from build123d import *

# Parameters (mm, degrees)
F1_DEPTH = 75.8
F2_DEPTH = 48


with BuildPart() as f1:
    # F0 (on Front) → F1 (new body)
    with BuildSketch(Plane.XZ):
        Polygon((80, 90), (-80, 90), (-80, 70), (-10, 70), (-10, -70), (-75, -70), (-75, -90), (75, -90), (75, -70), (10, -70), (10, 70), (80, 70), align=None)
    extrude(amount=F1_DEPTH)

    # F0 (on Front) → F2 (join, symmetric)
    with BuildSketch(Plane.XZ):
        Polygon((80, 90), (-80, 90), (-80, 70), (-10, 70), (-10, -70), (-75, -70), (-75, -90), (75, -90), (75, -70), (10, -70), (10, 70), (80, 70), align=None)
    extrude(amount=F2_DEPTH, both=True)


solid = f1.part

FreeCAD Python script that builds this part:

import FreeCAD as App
import Part
import Sketcher
from FreeCAD import Vector
Q = App.Units.Quantity


def add_polygon(sketch, points):
    """Adds a closed chain of lines whose ends are joined by coincident constraints."""
    first, n = sketch.GeometryCount, len(points)
    for a, b in zip(points, points[1:] + points[:1]):
        sketch.addGeometry(Part.LineSegment(App.Vector(*a, 0), App.Vector(*b, 0)), False)
    for i in range(n):
        sketch.addConstraint(Sketcher.Constraint("Coincident", first + i, 2, first + (i + 1) % n, 1))

doc = App.newDocument("Part")
body = doc.addObject("PartDesign::Body", "Body")

sketch1 = doc.addObject("Sketcher::SketchObject", "Sketch")
body.addObject(sketch1)
sketch1.AttachmentSupport = (doc.XZ_Plane, [""])
sketch1.MapMode = "FlatFace"
add_polygon(sketch1, [(80, 90), (-80, 90), (-80, 70), (-10, 70), (-10, -70), (-75, -70), (-75, -90), (75, -90), (75, -70), (10, -70), (10, 70), (80, 70)])
sketch1.addConstraint([
    Sketcher.Constraint("Horizontal", 0),
    Sketcher.Constraint("Vertical", 1),
    Sketcher.Constraint("Horizontal", 2),
    Sketcher.Constraint("Vertical", 3),
    Sketcher.Constraint("Horizontal", 4),
    Sketcher.Constraint("Vertical", 5),
    Sketcher.Constraint("Horizontal", 6),
    Sketcher.Constraint("Vertical", 7),
    Sketcher.Constraint("Horizontal", 8),
    Sketcher.Constraint("Vertical", 9),
    Sketcher.Constraint("Horizontal", 10),
    Sketcher.Constraint("Vertical", 11),
    Sketcher.Constraint("Symmetric", 2, 2, 8, 2, -1, 1),
    Sketcher.Constraint("Symmetric", 4, 2, 7, 2, -2),
    Sketcher.Constraint("Symmetric", 1, 2, 10, 2, -2),
    Sketcher.Constraint("Equal", 1, 5),
    Sketcher.Constraint("DistanceX", 0, 2, 0, 1, Q("160 mm")),
    Sketcher.Constraint("DistanceX", 2, 1, 2, 2, Q("70 mm")),
    Sketcher.Constraint("DistanceX", 4, 2, 4, 1, Q("65 mm")),
    Sketcher.Constraint("DistanceY", 1, 2, 1, 1, Q("20 mm")),
    Sketcher.Constraint("DistanceY", 3, 2, 3, 1, Q("140 mm")),
])
pad1 = doc.addObject("PartDesign::Pad", "Pad")
body.addObject(pad1)
pad1.Profile = sketch1
pad1.Length = 75.8

sketch2 = doc.addObject("Sketcher::SketchObject", "Sketch001")
body.addObject(sketch2)
sketch2.AttachmentSupport = (doc.XZ_Plane, [""])
sketch2.MapMode = "FlatFace"
add_polygon(sketch2, [(80, 90), (-80, 90), (-80, 70), (-10, 70), (-10, -70), (-75, -70), (-75, -90), (75, -90), (75, -70), (10, -70), (10, 70), (80, 70)])
sketch2.addConstraint([
    Sketcher.Constraint("Horizontal", 0),
    Sketcher.Constraint("Vertical", 1),
    Sketcher.Constraint("Horizontal", 2),
    Sketcher.Constraint("Vertical", 3),
    Sketcher.Constraint("Horizontal", 4),
    Sketcher.Constraint("Vertical", 5),
    Sketcher.Constraint("Horizontal", 6),
    Sketcher.Constraint("Vertical", 7),
    Sketcher.Constraint("Horizontal", 8),
    Sketcher.Constraint("Vertical", 9),
    Sketcher.Constraint("Horizontal", 10),
    Sketcher.Constraint("Vertical", 11),
    Sketcher.Constraint("Symmetric", 2, 2, 8, 2, -1, 1),
    Sketcher.Constraint("Symmetric", 4, 2, 7, 2, -2),
    Sketcher.Constraint("Symmetric", 1, 2, 10, 2, -2),
    Sketcher.Constraint("Equal", 1, 5),
    Sketcher.Constraint("DistanceX", 0, 2, 0, 1, Q("160 mm")),
    Sketcher.Constraint("DistanceX", 2, 1, 2, 2, Q("70 mm")),
    Sketcher.Constraint("DistanceX", 4, 2, 4, 1, Q("65 mm")),
    Sketcher.Constraint("DistanceY", 1, 2, 1, 1, Q("20 mm")),
    Sketcher.Constraint("DistanceY", 3, 2, 3, 1, Q("140 mm")),
])
pad2 = doc.addObject("PartDesign::Pad", "Pad001")
body.addObject(pad2)
pad2.Profile = sketch2
pad2.Length = 96
pad2.Midplane = True

doc.recompute()
